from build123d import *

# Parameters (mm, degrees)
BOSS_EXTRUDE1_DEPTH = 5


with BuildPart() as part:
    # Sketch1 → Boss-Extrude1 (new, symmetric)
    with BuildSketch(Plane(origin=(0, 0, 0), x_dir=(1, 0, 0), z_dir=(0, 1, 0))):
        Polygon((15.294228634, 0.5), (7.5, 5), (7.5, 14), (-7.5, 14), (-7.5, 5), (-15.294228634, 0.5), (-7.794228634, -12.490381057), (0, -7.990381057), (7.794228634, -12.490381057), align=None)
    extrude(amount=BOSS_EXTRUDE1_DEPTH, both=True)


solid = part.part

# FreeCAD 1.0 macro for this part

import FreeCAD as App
import Part
import Sketcher

V = App.Vector
Q = App.Units.Quantity


def add_polygon(sketch, points):
    """Adds a closed chain of lines whose ends are joined by coincident constraints."""
    first, n = sketch.GeometryCount, len(points)
    for a, b in zip(points, points[1:] + points[:1]):
        sketch.addGeometry(Part.LineSegment(App.Vector(*a, 0), App.Vector(*b, 0)), False)
    for i in range(n):
        sketch.addConstraint(Sketcher.Constraint("Coincident", first + i, 2, first + (i + 1) % n, 1))

doc = App.newDocument("Part")
body = doc.addObject("PartDesign::Body", "Body")

# Sketch on XZ plane
sketch1 = body.newObject("Sketcher::SketchObject", "Sketch")
sketch1.AttachmentSupport = (doc.getObject("XZ_Plane"), [""])
sketch1.MapMode = "FlatFace"
add_polygon(sketch1, [(15, 0), (8, -5), (8, -14), (-8, -14), (-8, -5), (-15, 0), (-8, 12), (0, 8), (8, 12)])  # lines 0-8
sketch1.addConstraint(Sketcher.Constraint("Vertical", 1))
sketch1.addConstraint(Sketcher.Constraint("Horizontal", 2))
sketch1.addConstraint(Sketcher.Constraint("Vertical", 3))
sketch1.addConstraint(Sketcher.Constraint("Symmetric", 0, 2, 3, 2, -2))
sketch1.addConstraint(Sketcher.Constraint("Symmetric", 5, 2, 7, 2, -2))
sketch1.addConstraint(Sketcher.Constraint("Symmetric", 4, 2, 8, 2, -2))
sketch1.addConstraint(Sketcher.Constraint("PointOnObject", 6, 2, -2))
sketch1.addConstraint(Sketcher.Constraint("Perpendicular", 4, 5))
sketch1.addConstraint(Sketcher.Constraint("Perpendicular", 5, 6))
sketch1.addConstraint(Sketcher.Constraint("Equal", 4, 6))
sketch1.addConstraint(Sketcher.Constraint("DistanceX", 2, 2, 2, 1, 15.0))
sketch1.addConstraint(Sketcher.Constraint("DistanceY", 1, 2, 1, 1, 9.0))
sketch1.addConstraint(Sketcher.Constraint("Angle", 0, Q("-150 deg")))
sketch1.addConstraint(Sketcher.Constraint("Distance", 0, 9.0))
sketch1.addConstraint(Sketcher.Constraint("DistanceY", 0, 2, -1, 1, 5.0))
pad1 = body.newObject("PartDesign::Pad", "Pad")
pad1.Profile = sketch1
pad1.Length = 10
pad1.Midplane = True

doc.recompute()
